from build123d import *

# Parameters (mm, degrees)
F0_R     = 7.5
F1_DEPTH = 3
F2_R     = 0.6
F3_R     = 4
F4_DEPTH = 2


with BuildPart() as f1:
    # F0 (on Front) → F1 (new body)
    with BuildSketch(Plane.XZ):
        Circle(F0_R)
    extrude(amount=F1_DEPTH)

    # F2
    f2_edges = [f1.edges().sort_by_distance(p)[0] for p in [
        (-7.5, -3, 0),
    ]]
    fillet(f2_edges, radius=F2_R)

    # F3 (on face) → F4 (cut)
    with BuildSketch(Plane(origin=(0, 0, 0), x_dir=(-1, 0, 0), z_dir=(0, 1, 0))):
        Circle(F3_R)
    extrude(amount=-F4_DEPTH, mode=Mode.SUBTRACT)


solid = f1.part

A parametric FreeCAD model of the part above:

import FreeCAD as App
import Part
import Sketcher

V = App.Vector
Q = App.Units.Quantity


def edges_at(feature, points):
    """Names of the edges that pass closest to the given points."""
    edges = feature.Shape.Edges
    near = lambda p: min(range(len(edges)), key=lambda i: edges[i].distToShape(Part.Vertex(*p))[0])
    return sorted({f"Edge{near(p) + 1}" for p in points})

doc = App.newDocument("Part")
body = doc.addObject("PartDesign::Body", "Body")

# Sketch on XZ plane
sketch1 = body.newObject("Sketcher::SketchObject", "Sketch")
sketch1.AttachmentSupport = (doc.getObject("XZ_Plane"), [""])
sketch1.MapMode = "FlatFace"
sketch1.addGeometry(Part.Circle(V(0, 0, 0), V(0, 0, 1), 8), False)
sketch1.addConstraint(Sketcher.Constraint("Coincident", 0, 3, -1, 1))
sketch1.addConstraint(Sketcher.Constraint("Diameter", 0, Q("15 mm")))
pad1 = body.newObject("PartDesign::Pad", "Pad")
pad1.Profile = sketch1
pad1.Length = 3
doc.recompute()

fillet = body.newObject("PartDesign::Fillet", "Fillet")
fillet.Base = (pad1, edges_at(pad1, [(-7.5, -3, 0)]))
fillet.Radius = 0.6

# Sketch on XZ plane
sketch2 = body.newObject("Sketcher::SketchObject", "Sketch001")
sketch2.AttachmentSupport = (doc.getObject("XZ_Plane"), [""])
sketch2.MapMode = "FlatFace"
sketch2.addGeometry(Part.Circle(V(0, 0, 0), V(0, 0, 1), 4), False)
sketch2.addConstraint(Sketcher.Constraint("Coincident", 0, 3, -1, 1))
sketch2.addConstraint(Sketcher.Constraint("Diameter", 0, Q("8 mm")))
pocket1 = body.newObject("PartDesign::Pocket", "Pocket")
pocket1.Profile = sketch2
pocket1.Length = 2
pocket1.Reversed = True

doc.recompute()
